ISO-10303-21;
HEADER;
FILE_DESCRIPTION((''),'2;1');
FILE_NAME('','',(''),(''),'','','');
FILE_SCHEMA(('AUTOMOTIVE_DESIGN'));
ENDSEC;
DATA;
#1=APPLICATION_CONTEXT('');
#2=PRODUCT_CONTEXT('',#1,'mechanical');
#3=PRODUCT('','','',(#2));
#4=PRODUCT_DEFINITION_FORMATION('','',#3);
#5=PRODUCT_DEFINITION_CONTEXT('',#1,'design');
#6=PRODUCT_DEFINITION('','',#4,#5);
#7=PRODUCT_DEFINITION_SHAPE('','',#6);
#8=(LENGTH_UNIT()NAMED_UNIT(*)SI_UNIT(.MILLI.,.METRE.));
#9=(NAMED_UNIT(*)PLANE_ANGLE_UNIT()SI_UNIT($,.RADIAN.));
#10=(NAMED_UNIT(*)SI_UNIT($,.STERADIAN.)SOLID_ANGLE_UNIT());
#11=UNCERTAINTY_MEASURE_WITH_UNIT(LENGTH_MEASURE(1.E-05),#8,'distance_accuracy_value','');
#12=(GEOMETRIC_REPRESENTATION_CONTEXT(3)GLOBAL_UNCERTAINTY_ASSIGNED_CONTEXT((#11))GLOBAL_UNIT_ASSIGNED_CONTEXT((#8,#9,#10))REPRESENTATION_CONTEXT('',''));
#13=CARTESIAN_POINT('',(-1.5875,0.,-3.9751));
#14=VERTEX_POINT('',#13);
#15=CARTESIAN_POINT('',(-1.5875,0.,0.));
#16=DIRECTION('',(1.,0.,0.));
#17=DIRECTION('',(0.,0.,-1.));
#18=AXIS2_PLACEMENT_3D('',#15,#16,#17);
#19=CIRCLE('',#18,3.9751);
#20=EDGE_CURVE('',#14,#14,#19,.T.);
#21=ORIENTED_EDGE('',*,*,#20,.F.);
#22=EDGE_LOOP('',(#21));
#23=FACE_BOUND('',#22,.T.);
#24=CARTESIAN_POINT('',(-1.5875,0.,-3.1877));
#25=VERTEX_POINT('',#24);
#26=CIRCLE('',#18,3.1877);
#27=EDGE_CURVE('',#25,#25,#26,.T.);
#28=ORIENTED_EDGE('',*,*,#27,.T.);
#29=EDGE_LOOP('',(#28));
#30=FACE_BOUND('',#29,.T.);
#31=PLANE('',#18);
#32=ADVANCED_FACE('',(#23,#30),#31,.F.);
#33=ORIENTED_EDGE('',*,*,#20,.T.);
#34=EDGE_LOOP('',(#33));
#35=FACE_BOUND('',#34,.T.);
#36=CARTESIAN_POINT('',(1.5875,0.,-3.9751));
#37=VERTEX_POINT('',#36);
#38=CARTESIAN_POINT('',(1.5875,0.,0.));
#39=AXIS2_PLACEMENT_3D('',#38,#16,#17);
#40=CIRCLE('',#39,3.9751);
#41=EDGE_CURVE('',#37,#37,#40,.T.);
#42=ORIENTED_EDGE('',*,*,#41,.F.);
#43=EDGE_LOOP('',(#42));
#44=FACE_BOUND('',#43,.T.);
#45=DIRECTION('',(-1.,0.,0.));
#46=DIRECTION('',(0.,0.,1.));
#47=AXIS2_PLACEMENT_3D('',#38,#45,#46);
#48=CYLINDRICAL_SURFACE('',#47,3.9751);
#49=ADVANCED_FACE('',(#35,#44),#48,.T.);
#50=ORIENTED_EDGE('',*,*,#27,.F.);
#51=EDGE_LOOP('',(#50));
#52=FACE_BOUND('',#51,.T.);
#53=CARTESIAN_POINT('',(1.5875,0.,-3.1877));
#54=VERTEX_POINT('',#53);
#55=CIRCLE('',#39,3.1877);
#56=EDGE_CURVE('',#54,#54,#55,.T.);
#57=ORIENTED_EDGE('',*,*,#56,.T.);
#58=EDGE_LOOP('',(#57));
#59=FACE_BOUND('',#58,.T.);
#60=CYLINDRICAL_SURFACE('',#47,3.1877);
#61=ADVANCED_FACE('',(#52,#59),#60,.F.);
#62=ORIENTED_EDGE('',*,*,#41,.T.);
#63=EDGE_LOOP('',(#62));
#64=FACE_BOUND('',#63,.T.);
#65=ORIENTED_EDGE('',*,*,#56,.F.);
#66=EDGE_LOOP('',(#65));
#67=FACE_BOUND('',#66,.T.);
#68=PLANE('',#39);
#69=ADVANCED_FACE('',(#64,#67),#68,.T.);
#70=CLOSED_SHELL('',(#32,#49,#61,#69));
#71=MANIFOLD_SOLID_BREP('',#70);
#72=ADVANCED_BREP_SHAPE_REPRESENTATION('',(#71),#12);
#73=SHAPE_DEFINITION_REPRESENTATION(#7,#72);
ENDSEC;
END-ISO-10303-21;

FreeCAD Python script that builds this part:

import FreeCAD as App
import Part
import Sketcher
from FreeCAD import Vector
Q = App.Units.Quantity

doc = App.newDocument("Part")
body = doc.addObject("PartDesign::Body", "Body")

sketch1 = doc.addObject("Sketcher::SketchObject", "Sketch")
body.addObject(sketch1)
sketch1.AttachmentSupport = (doc.YZ_Plane, [""])
sketch1.MapMode = "FlatFace"
sketch1.addGeometry([
    Part.Circle(Vector(0, 0, 0), Vector(0, 0, 1), 3.9751),
    Part.Circle(Vector(0, 0, 0), Vector(0, 0, 1), 3.1877),
], False)
sketch1.addConstraint([
    Sketcher.Constraint("Coincident", 0, 3, -1, 1),
    Sketcher.Constraint("Coincident", 1, 3, -1, 1),
    Sketcher.Constraint("Diameter", 0, Q("0.313 in")),
    Sketcher.Constraint("Diameter", 1, Q("0.251 in")),
])
pad1 = doc.addObject("PartDesign::Pad", "Pad")
body.addObject(pad1)
pad1.Profile = sketch1
pad1.Length = Q("0.125 in")
pad1.Midplane = True

doc.recompute()
